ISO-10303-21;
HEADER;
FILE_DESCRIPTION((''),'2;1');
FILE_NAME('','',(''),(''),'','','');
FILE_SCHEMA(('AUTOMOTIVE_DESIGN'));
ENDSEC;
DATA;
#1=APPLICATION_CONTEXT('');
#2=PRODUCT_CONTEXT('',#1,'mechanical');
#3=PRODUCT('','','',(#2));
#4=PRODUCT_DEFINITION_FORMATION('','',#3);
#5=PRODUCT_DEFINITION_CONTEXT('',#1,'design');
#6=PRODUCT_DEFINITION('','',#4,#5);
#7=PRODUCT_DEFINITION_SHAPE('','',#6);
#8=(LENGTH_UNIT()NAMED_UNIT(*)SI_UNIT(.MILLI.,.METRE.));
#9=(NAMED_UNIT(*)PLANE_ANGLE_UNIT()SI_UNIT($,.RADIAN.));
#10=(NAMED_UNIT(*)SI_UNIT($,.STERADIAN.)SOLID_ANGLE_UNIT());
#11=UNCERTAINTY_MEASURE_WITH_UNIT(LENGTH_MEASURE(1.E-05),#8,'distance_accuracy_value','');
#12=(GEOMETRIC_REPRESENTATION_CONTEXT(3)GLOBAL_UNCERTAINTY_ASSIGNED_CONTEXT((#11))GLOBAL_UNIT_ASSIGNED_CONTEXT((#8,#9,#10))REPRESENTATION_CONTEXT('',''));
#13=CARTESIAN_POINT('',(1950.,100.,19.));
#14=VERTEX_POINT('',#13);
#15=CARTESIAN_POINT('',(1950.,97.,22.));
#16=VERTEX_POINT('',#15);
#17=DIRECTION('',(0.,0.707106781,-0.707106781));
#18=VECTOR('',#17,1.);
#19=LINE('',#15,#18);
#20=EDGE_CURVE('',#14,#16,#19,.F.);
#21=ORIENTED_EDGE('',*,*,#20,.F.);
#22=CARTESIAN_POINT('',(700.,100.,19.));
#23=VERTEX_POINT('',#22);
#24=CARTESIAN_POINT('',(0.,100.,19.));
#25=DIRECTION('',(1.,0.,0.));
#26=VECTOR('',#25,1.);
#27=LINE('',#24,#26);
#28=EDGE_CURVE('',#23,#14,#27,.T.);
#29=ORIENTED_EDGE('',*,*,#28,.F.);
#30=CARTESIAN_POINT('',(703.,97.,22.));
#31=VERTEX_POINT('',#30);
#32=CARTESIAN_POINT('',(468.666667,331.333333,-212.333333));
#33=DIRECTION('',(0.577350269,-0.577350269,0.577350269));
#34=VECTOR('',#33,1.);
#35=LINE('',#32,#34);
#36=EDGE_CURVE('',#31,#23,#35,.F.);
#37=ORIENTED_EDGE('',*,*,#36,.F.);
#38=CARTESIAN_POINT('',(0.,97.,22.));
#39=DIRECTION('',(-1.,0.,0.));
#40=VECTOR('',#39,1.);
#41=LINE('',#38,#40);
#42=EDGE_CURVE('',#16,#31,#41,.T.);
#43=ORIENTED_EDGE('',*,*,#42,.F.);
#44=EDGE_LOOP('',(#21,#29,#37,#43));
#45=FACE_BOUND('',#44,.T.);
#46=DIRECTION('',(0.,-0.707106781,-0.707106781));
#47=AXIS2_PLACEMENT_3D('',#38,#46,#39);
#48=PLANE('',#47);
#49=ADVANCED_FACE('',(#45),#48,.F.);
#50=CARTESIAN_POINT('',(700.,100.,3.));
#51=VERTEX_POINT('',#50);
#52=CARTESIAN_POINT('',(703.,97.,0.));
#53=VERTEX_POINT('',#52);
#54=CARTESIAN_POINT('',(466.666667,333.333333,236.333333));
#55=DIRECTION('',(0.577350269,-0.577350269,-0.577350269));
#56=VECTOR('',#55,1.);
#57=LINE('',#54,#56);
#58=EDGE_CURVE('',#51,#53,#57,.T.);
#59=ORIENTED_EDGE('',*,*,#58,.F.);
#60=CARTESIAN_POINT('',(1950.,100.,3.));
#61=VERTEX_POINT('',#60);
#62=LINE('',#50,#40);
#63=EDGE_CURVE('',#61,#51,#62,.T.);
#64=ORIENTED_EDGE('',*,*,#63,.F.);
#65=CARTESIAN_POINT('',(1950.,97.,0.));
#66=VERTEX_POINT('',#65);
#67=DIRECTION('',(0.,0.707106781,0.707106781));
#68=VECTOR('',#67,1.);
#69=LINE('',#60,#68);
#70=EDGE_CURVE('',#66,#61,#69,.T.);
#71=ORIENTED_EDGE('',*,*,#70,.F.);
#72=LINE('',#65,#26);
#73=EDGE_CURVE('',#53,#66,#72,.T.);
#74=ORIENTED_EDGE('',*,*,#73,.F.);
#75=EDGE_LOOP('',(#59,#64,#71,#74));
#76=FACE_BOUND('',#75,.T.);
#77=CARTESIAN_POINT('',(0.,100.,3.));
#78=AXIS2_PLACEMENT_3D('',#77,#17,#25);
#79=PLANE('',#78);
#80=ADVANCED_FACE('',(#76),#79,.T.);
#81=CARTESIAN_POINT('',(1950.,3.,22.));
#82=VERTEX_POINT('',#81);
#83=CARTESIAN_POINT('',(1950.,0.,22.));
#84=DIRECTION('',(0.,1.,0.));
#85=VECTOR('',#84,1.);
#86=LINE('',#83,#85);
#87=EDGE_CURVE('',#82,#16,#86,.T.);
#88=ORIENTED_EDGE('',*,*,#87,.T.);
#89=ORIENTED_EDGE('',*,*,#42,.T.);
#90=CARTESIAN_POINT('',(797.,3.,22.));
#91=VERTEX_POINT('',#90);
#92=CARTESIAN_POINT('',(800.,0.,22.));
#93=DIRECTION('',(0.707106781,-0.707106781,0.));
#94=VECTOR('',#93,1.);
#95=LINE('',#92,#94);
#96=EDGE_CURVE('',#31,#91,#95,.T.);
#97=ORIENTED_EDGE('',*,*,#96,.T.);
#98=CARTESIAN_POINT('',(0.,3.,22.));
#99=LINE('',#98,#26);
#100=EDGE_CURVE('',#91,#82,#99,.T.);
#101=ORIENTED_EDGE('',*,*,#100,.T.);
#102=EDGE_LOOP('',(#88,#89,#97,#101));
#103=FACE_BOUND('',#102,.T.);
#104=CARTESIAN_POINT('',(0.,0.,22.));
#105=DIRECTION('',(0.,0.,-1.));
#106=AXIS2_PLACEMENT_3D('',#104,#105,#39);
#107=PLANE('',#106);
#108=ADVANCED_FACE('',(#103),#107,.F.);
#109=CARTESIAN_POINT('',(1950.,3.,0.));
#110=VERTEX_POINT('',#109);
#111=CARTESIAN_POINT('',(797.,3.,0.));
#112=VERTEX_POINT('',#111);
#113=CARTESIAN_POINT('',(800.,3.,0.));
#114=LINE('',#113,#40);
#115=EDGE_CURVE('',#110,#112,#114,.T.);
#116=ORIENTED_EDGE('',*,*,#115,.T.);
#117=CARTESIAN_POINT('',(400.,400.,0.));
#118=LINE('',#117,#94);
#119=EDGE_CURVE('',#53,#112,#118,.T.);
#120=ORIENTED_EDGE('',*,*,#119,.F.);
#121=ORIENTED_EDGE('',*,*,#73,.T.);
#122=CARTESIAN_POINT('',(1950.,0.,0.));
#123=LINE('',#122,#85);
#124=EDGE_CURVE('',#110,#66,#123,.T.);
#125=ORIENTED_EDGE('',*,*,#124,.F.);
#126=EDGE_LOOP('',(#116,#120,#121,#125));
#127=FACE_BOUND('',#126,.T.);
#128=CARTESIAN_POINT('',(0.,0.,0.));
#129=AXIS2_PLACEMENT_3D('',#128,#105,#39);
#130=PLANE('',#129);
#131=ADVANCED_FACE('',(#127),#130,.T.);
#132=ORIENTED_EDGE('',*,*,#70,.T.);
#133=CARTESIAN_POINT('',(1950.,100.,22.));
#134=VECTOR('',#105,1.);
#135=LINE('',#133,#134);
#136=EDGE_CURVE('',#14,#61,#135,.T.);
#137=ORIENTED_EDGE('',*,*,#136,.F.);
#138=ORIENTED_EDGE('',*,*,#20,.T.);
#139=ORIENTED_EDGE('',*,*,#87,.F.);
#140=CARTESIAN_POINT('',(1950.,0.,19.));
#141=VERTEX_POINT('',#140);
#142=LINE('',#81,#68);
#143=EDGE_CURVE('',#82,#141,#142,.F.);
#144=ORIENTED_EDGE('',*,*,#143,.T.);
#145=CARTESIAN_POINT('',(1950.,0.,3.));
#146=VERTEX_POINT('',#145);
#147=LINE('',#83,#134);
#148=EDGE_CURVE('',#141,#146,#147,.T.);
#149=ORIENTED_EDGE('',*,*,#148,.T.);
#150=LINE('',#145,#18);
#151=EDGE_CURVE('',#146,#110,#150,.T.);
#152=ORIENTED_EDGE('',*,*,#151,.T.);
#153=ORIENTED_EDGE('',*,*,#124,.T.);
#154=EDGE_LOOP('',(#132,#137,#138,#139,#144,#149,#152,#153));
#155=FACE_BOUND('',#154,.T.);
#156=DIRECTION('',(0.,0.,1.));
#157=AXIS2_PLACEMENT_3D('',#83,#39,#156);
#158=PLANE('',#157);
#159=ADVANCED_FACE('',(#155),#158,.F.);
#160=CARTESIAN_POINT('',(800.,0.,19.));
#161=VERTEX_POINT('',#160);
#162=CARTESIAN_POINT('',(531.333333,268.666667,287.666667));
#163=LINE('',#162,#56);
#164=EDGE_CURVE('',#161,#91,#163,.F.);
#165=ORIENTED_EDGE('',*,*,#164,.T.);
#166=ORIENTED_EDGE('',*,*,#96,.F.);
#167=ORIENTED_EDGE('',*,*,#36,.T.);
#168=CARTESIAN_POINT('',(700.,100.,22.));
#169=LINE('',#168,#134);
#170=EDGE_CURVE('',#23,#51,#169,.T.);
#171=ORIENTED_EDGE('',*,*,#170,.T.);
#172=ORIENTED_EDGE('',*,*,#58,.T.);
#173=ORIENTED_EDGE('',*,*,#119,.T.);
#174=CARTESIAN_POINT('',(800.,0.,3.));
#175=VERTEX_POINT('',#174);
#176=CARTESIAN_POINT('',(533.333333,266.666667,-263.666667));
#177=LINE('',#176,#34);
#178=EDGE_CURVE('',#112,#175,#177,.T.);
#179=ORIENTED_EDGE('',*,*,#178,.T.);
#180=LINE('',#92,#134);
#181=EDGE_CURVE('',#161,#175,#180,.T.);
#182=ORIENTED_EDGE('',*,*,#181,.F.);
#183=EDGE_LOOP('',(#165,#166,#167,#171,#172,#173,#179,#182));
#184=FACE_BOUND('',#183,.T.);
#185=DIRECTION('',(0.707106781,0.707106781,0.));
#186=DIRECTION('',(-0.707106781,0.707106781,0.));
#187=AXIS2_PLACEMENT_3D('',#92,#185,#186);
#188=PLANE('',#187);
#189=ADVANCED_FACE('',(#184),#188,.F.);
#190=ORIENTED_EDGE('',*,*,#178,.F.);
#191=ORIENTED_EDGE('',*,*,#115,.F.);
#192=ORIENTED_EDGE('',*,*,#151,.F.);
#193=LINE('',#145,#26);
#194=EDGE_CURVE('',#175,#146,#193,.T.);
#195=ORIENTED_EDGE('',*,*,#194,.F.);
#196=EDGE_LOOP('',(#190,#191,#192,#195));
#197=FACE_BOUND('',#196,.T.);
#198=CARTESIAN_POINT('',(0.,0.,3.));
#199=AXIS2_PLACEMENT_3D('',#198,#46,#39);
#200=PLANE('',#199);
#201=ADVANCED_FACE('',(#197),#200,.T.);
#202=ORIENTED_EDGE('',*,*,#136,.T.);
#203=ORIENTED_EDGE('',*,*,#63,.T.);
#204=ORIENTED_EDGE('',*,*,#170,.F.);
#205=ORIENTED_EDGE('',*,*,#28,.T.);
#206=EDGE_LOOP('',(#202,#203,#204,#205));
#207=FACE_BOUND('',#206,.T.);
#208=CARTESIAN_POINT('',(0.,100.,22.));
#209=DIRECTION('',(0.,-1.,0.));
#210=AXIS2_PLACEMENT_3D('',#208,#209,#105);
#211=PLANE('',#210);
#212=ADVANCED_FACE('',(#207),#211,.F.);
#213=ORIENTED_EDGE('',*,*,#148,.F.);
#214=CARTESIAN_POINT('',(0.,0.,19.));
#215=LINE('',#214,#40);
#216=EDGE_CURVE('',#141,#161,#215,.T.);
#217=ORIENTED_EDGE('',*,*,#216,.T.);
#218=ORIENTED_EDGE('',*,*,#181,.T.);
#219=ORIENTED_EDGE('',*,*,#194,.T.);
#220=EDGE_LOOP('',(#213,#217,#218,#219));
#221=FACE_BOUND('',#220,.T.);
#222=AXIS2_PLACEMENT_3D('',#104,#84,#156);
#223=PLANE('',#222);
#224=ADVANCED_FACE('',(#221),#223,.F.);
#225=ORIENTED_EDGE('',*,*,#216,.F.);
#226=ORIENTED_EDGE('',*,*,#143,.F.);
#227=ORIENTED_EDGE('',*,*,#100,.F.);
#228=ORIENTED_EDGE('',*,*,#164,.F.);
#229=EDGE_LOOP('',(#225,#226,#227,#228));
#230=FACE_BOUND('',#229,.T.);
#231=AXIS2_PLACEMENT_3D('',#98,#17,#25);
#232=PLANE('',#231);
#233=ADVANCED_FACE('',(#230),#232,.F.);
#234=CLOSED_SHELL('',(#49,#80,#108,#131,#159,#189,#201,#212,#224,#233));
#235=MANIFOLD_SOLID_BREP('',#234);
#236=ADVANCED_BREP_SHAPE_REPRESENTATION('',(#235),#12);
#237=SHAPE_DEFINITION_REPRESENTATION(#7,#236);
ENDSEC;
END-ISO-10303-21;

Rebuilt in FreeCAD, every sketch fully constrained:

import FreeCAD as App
import Part
import Sketcher


def edges_at(feature, points):
    """Names of the edges that pass closest to the given points."""
    edges = feature.Shape.Edges
    near = lambda p: min(range(len(edges)), key=lambda i: edges[i].distToShape(Part.Vertex(*p))[0])
    return sorted({f"Edge{near(p) + 1}" for p in points})

doc = App.newDocument("Part")
params = doc.addObject("Spreadsheet::Sheet", "Params")
for row, (alias, value) in enumerate([
    ("sketch1_width", "1950 mm"),
    ("sketch1_height", "100 mm"),
    ("pad1_length", "22 mm"),
    ("sketch2_width", "800 mm"),
    ("sketch2_width2", "700 mm"),
    ("sketch2_height", "100 mm"),
    ("chamfer_size", "3 mm"),
], start=1):
    params.set(f"A{row}", alias)
    params.set(f"B{row}", "=" + value)
    params.setAlias(f"B{row}", alias)

body = doc.addObject("PartDesign::Body", "Body")

# Sketch on XY plane
sketch1 = body.newObject("Sketcher::SketchObject", "Sketch")
sketch1.AttachmentSupport = (doc.getObject("XY_Plane"), [""])
sketch1.MapMode = "FlatFace"
sketch1.addGeometry(Part.LineSegment(App.Vector(0, 100, 0), App.Vector(0, 0, 0)), False)
sketch1.addGeometry(Part.LineSegment(App.Vector(0, 0, 0), App.Vector(1950, 0, 0)), False)
sketch1.addGeometry(Part.LineSegment(App.Vector(1950, 0, 0), App.Vector(1950, 100, 0)), False)
sketch1.addGeometry(Part.LineSegment(App.Vector(1950, 100, 0), App.Vector(0, 100, 0)), False)
sketch1.addConstraint(Sketcher.Constraint("Coincident", 0, 2, 1, 1))
sketch1.addConstraint(Sketcher.Constraint("Coincident", 1, 2, 2, 1))
sketch1.addConstraint(Sketcher.Constraint("Coincident", 2, 2, 3, 1))
sketch1.addConstraint(Sketcher.Constraint("Coincident", 3, 2, 0, 1))
sketch1.addConstraint(Sketcher.Constraint("Vertical", 0))
sketch1.addConstraint(Sketcher.Constraint("Horizontal", 1))
sketch1.addConstraint(Sketcher.Constraint("Vertical", 2))
sketch1.addConstraint(Sketcher.Constraint("Horizontal", 3))
sketch1.addConstraint(Sketcher.Constraint("Coincident", 0, 2, -1, 1))
sketch1.addConstraint(Sketcher.Constraint("DistanceX", 1, 1, 1, 2, 1950.0))
sketch1.addConstraint(Sketcher.Constraint("DistanceY", 0, 2, 0, 1, 100.0))
sketch1.setExpression("Constraints[9]", "Params.sketch1_width")
sketch1.setExpression("Constraints[10]", "Params.sketch1_height")
pad1 = body.newObject("PartDesign::Pad", "Pad")
pad1.Profile = sketch1
pad1.setExpression("Length", "Params.pad1_length")

# Sketch on XY plane
sketch2 = body.newObject("Sketcher::SketchObject", "Sketch001")
sketch2.AttachmentSupport = (doc.getObject("XY_Plane"), [""])
sketch2.MapMode = "FlatFace"
sketch2.addGeometry(Part.LineSegment(App.Vector(800, 0, 0), App.Vector(0, 0, 0)), False)
sketch2.addGeometry(Part.LineSegment(App.Vector(0, 0, 0), App.Vector(0, 100, 0)), False)
sketch2.addGeometry(Part.LineSegment(App.Vector(0, 100, 0), App.Vector(700, 100, 0)), False)
sketch2.addGeometry(Part.LineSegment(App.Vector(700, 100, 0), App.Vector(800, 0, 0)), False)
sketch2.addConstraint(Sketcher.Constraint("Coincident", 0, 2, 1, 1))
sketch2.addConstraint(Sketcher.Constraint("Coincident", 1, 2, 2, 1))
sketch2.addConstraint(Sketcher.Constraint("Coincident", 2, 2, 3, 1))
sketch2.addConstraint(Sketcher.Constraint("Coincident", 3, 2, 0, 1))
sketch2.addConstraint(Sketcher.Constraint("Horizontal", 0))
sketch2.addConstraint(Sketcher.Constraint("Vertical", 1))
sketch2.addConstraint(Sketcher.Constraint("Horizontal", 2))
sketch2.addConstraint(Sketcher.Constraint("Coincident", 0, 2, -1, 1))
sketch2.addConstraint(Sketcher.Constraint("DistanceX", 0, 2, 0, 1, 800.0))
sketch2.addConstraint(Sketcher.Constraint("DistanceX", 2, 1, 2, 2, 700.0))
sketch2.addConstraint(Sketcher.Constraint("DistanceY", 1, 1, 1, 2, 100.0))
sketch2.setExpression("Constraints[8]", "Params.sketch2_width")
sketch2.setExpression("Constraints[9]", "Params.sketch2_width2")
sketch2.setExpression("Constraints[10]", "Params.sketch2_height")
pocket1 = body.newObject("PartDesign::Pocket", "Pocket")
pocket1.Profile = sketch2
pocket1.Type = "ThroughAll"
pocket1.Midplane = True
doc.recompute()

chamfer = body.newObject("PartDesign::Chamfer", "Chamfer")
chamfer.Base = (pocket1, edges_at(pocket1, [
    (1325, 100, 22),
    (1375, 0, 0),
    (1375, 0, 22),
    (1325, 100, 0),
]))
chamfer.setExpression("Size", "Params.chamfer_size")

doc.recompute()
